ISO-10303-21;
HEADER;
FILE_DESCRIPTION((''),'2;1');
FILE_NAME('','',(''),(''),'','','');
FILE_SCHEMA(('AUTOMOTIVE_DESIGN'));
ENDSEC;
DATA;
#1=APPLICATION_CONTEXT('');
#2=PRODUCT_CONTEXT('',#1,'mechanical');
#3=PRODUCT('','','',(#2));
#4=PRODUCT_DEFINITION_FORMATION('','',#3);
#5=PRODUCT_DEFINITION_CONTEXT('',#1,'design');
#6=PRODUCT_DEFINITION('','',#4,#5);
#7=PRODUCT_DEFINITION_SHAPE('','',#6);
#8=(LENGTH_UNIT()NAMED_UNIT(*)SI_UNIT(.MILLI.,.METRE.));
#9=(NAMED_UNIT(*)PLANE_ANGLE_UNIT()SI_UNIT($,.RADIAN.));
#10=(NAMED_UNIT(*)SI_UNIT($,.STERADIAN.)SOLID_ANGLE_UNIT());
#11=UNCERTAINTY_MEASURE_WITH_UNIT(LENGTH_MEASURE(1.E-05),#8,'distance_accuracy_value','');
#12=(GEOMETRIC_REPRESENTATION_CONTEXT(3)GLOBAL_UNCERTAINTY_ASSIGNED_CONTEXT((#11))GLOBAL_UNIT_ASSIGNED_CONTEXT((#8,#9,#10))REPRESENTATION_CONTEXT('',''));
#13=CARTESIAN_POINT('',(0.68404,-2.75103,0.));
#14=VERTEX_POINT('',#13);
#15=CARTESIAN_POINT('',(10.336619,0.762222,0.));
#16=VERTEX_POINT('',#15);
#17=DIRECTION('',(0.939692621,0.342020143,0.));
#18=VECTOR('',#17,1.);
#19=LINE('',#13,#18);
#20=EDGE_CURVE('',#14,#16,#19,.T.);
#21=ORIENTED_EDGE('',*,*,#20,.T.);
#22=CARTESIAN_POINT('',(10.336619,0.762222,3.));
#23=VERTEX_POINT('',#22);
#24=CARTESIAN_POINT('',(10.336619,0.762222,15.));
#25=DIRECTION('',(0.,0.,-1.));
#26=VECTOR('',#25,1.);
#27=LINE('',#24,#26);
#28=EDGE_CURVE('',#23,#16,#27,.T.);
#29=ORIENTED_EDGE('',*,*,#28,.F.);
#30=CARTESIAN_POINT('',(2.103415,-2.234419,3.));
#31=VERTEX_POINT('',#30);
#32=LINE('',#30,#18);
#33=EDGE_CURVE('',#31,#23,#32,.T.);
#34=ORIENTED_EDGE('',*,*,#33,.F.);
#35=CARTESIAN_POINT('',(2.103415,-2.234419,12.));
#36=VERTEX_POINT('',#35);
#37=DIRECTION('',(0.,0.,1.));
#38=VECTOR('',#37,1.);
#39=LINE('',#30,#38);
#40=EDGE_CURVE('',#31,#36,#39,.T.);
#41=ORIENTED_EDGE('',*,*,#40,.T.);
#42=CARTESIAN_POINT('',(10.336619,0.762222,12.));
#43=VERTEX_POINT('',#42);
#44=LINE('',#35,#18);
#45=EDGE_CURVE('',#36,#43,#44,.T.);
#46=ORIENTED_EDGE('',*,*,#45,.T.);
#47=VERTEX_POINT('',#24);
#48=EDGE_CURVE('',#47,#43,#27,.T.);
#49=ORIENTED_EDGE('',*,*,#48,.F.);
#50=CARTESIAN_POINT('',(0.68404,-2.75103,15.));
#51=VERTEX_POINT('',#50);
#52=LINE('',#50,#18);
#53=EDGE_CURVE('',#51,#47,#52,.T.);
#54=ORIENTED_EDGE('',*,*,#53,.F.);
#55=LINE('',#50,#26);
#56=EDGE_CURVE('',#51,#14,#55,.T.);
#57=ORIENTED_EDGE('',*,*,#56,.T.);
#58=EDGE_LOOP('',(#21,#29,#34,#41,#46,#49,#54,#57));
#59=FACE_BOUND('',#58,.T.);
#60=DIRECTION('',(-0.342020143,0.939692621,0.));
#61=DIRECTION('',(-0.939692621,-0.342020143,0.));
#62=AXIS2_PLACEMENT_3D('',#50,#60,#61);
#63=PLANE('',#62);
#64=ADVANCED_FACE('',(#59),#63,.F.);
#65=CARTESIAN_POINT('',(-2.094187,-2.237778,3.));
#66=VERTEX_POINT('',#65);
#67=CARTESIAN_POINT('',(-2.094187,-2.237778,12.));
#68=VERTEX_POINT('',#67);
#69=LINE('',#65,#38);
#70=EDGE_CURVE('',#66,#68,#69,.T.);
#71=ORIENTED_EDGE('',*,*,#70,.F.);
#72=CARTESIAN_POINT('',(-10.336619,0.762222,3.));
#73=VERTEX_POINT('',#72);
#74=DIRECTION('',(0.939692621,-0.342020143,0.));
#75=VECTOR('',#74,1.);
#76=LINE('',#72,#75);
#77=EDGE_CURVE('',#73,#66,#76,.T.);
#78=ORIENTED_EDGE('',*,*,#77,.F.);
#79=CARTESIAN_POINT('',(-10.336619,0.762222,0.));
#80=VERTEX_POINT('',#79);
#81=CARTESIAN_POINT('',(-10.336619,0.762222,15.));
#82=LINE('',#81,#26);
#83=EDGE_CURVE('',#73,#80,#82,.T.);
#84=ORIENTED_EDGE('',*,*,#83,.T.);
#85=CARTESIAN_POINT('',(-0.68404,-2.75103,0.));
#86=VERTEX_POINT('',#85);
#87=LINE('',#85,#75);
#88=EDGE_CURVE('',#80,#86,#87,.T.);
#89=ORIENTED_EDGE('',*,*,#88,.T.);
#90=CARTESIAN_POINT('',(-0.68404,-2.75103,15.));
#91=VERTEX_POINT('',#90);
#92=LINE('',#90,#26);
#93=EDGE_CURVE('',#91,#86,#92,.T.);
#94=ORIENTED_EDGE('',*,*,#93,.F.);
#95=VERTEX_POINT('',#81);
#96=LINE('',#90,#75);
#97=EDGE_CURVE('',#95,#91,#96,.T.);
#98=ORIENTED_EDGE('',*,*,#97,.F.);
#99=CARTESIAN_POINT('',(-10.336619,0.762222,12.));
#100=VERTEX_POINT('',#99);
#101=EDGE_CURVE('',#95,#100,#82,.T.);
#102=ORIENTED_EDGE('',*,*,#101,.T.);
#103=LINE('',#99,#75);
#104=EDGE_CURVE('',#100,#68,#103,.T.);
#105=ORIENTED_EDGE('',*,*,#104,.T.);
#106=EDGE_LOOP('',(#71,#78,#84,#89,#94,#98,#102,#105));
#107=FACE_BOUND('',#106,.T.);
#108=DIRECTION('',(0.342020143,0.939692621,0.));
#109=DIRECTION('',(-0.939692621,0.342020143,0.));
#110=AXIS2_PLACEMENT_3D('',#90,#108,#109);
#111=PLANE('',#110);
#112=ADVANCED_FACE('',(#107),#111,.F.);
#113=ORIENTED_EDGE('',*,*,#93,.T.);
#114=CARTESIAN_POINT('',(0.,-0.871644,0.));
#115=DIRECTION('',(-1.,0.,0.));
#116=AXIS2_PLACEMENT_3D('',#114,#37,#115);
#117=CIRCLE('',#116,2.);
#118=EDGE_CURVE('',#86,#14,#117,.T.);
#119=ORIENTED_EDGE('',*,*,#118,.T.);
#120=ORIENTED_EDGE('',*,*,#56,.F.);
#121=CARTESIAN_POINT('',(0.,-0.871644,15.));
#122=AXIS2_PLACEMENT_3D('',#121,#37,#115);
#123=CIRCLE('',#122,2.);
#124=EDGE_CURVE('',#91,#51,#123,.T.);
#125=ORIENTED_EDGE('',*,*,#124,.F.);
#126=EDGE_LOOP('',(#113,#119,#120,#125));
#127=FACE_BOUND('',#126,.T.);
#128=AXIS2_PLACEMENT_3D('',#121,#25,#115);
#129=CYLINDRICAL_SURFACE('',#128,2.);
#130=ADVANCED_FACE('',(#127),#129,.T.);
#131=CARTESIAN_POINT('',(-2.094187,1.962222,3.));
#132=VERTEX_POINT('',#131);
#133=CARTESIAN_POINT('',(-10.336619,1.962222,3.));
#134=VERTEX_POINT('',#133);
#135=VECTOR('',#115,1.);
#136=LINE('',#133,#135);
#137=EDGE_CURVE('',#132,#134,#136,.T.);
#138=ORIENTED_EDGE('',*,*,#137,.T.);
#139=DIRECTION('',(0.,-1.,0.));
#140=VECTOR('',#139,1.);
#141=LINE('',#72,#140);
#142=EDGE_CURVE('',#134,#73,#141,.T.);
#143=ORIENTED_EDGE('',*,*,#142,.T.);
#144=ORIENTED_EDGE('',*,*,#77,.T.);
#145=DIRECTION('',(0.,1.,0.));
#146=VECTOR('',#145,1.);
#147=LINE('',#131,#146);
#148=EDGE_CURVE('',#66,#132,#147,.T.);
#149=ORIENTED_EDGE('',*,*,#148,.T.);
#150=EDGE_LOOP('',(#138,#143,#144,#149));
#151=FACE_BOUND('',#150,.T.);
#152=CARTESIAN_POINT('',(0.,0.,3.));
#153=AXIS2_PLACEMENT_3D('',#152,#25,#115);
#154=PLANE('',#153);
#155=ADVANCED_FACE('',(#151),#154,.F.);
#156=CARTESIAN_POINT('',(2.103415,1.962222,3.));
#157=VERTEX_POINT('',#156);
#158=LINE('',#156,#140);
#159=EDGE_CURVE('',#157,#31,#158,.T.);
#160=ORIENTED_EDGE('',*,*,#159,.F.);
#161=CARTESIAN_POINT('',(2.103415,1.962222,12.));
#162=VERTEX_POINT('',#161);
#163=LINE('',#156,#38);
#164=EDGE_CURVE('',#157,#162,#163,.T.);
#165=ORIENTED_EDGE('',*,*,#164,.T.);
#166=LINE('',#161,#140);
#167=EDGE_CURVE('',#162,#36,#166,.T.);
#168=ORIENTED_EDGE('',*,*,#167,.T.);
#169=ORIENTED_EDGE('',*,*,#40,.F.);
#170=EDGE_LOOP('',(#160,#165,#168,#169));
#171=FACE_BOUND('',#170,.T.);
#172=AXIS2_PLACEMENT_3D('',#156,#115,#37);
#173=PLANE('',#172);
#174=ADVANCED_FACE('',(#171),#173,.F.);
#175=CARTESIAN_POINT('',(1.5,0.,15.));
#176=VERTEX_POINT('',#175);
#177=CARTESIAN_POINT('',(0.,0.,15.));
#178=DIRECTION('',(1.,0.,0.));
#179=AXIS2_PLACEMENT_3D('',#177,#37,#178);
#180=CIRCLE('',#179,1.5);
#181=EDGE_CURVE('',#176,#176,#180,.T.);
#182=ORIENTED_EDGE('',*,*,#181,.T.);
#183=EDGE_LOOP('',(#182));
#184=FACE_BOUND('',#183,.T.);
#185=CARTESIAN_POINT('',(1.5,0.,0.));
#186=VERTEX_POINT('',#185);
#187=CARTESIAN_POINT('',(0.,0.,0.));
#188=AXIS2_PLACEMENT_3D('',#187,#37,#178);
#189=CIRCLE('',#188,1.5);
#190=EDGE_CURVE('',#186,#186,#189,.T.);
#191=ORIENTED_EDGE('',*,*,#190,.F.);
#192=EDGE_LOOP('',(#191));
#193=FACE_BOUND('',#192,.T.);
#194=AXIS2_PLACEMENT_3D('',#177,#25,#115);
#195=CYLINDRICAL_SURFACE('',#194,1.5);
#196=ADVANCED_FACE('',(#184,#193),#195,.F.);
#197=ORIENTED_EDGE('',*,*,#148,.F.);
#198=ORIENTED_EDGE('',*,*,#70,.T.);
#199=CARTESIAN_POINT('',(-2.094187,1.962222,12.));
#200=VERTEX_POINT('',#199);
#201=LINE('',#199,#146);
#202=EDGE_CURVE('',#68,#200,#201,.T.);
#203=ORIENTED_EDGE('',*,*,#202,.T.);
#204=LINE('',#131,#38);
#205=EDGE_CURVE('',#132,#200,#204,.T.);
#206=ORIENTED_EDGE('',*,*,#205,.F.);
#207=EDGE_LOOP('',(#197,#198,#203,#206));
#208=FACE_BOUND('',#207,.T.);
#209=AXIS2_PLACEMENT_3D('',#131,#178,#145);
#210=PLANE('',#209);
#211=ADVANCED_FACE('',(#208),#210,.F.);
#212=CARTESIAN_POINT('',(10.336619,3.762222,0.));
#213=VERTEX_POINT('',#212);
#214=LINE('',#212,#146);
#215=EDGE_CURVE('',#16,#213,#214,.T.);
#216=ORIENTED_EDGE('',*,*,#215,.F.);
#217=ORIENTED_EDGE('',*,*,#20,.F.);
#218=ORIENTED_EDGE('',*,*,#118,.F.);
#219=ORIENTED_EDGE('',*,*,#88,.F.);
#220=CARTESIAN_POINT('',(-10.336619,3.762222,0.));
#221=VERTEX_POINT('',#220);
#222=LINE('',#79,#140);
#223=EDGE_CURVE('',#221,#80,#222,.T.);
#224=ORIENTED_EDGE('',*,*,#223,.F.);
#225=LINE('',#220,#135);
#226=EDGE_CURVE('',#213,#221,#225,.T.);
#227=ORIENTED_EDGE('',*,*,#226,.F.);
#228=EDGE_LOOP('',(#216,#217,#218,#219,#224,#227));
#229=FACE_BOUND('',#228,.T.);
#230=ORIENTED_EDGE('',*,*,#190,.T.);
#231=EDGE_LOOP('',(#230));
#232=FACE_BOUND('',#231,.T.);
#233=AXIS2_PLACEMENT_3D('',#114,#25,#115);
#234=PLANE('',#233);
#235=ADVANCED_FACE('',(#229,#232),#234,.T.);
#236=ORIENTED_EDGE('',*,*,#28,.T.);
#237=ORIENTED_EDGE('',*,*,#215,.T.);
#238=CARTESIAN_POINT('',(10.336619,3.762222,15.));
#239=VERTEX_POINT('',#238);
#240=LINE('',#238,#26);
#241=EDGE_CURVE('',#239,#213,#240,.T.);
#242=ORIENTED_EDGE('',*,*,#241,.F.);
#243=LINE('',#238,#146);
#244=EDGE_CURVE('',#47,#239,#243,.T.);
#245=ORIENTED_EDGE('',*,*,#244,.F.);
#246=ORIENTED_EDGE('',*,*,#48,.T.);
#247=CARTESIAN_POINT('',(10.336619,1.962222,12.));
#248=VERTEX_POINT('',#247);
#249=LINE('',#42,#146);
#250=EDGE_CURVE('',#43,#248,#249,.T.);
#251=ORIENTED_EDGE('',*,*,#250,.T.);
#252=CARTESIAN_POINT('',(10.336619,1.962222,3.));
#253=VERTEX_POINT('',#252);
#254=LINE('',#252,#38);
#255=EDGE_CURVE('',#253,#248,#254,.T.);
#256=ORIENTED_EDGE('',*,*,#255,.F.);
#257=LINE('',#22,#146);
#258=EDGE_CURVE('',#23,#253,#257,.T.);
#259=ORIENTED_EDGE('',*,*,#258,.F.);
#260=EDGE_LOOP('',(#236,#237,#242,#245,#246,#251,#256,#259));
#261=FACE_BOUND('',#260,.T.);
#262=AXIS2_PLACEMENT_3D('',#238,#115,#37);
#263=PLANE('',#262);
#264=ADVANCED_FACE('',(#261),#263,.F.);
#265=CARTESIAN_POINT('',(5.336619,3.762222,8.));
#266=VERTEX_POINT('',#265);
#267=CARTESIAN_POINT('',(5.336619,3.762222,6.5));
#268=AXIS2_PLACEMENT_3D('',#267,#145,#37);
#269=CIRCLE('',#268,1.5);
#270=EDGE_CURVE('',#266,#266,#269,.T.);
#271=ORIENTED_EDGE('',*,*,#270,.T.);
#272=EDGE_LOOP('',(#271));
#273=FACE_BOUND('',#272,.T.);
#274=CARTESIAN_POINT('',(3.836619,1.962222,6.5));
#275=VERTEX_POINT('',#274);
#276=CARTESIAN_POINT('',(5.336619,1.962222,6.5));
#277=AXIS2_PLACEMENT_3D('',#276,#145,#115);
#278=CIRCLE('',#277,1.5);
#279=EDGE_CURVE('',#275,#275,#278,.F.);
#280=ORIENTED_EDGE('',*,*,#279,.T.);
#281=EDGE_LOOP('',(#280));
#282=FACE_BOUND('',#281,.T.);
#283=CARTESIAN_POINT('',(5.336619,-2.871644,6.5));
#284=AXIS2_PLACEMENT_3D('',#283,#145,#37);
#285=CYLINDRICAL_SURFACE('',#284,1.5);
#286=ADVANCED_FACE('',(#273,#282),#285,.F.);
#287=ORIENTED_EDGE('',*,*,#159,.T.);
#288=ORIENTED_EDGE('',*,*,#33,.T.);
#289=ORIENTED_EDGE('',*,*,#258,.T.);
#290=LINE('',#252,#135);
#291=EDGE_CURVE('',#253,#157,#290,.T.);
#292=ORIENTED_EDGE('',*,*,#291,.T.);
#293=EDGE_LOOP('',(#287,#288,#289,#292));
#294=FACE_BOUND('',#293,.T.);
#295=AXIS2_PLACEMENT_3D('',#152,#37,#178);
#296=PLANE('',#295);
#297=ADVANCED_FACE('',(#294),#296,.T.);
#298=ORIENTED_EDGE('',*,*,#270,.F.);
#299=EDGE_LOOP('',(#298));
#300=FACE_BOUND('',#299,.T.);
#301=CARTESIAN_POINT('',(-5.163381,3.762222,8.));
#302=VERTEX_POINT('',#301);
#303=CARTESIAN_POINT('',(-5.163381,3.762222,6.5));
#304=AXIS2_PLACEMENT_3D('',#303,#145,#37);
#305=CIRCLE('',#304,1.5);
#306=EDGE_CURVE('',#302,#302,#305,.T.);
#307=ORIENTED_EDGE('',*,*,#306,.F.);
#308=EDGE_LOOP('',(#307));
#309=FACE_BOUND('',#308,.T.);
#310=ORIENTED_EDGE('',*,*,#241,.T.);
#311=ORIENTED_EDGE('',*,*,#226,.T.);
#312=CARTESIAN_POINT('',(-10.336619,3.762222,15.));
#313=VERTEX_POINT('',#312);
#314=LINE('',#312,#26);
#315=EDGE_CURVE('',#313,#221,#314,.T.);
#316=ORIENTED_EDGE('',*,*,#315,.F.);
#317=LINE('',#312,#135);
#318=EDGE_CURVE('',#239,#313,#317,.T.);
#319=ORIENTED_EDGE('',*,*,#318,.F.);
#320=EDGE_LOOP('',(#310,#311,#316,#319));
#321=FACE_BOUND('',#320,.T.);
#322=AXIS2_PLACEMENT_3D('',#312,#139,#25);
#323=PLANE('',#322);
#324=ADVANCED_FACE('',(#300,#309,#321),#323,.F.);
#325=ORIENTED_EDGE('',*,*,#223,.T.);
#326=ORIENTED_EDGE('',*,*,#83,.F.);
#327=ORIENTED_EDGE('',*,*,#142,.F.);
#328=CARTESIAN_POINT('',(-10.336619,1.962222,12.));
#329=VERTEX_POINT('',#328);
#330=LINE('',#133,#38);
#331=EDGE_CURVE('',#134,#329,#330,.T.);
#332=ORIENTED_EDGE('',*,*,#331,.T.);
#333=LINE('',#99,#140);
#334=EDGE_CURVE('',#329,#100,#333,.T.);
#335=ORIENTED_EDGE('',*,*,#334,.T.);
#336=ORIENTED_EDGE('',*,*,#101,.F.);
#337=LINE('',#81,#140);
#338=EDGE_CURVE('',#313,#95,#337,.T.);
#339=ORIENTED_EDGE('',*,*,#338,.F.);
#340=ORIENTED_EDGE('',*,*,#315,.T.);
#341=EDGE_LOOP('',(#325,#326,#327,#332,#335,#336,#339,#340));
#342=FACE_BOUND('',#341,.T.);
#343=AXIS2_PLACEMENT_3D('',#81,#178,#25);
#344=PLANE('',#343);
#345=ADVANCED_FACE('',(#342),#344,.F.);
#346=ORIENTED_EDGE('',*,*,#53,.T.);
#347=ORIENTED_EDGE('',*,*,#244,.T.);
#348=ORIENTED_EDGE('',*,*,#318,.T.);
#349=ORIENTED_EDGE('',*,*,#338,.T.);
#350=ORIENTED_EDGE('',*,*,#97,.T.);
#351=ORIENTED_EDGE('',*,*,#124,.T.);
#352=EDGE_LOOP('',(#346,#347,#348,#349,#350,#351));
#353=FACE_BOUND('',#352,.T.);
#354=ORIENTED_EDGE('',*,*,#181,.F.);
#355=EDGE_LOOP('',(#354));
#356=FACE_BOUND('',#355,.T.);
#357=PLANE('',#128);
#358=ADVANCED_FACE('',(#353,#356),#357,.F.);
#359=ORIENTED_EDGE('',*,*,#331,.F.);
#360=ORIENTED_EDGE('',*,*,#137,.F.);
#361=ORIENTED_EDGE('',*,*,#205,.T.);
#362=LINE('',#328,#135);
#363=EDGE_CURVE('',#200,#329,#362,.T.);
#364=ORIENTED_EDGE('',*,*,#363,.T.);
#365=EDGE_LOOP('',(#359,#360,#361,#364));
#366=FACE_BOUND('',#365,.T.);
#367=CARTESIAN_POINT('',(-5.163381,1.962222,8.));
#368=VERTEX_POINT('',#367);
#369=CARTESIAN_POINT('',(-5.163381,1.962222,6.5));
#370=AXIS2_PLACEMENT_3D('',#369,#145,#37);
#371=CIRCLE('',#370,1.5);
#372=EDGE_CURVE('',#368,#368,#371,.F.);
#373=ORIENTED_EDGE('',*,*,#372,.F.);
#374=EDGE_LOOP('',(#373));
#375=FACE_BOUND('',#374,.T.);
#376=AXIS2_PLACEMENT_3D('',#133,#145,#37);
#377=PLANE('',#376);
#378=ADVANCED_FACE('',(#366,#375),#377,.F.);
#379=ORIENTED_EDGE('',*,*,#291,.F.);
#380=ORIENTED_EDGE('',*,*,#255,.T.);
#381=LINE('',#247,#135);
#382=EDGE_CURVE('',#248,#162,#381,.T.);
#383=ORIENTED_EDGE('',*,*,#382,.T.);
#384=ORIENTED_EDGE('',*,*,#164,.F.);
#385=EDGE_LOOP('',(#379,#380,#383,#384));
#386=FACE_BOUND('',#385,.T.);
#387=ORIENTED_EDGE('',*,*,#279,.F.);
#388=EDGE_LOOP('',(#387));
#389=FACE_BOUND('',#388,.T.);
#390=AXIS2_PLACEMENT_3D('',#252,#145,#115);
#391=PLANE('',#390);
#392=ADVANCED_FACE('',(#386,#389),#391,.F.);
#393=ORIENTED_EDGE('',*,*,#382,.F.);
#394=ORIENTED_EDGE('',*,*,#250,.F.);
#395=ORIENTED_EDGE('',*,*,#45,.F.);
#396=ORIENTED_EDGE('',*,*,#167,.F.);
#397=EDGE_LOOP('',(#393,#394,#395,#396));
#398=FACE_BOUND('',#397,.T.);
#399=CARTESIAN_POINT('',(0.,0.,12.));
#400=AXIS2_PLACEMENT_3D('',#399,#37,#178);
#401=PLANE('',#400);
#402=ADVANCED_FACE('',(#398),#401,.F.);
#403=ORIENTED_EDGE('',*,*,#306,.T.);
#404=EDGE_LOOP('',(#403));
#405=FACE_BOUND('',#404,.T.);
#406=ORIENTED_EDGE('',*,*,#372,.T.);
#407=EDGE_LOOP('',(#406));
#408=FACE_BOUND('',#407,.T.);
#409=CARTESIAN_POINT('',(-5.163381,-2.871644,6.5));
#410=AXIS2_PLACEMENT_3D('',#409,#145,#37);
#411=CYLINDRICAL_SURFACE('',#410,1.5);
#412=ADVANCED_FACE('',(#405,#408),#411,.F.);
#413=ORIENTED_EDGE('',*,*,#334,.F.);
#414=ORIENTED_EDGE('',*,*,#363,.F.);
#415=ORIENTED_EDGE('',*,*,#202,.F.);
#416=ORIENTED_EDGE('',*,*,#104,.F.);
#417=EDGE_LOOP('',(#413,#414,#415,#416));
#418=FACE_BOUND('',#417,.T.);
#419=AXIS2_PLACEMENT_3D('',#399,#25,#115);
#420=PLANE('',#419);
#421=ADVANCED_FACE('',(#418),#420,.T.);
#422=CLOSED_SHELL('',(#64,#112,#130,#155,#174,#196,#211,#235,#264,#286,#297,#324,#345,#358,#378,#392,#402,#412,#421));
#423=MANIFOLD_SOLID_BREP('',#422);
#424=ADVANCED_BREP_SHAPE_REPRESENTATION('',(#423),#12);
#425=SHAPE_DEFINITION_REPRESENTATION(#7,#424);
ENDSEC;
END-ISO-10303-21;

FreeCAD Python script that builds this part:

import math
import FreeCAD as App
import Part
import Sketcher
from FreeCAD import Vector
Q = App.Units.Quantity


def add_polygon(sketch, points):
    """Adds a closed chain of lines whose ends are joined by coincident constraints."""
    first, n = sketch.GeometryCount, len(points)
    for a, b in zip(points, points[1:] + points[:1]):
        sketch.addGeometry(Part.LineSegment(App.Vector(*a, 0), App.Vector(*b, 0)), False)
    for i in range(n):
        sketch.addConstraint(Sketcher.Constraint("Coincident", first + i, 2, first + (i + 1) % n, 1))

doc = App.newDocument("Part")
body = doc.addObject("PartDesign::Body", "Body")

# Sketch on XY plane
sketch1 = body.newObject("Sketcher::SketchObject", "Sketch")
sketch1.AttachmentSupport = (doc.getObject("XY_Plane"), [""])
sketch1.MapMode = "FlatFace"
sketch1.addGeometry(Part.LineSegment(Vector(-10.3, 0.8, 0), Vector(-0.7, -2.8, 0)), False)
sketch1.addGeometry(Part.ArcOfCircle(Part.Circle(Vector(0, -0.9, 0), Vector(0, 0, 1), 2), math.radians(-110), math.radians(-70)), False)
sketch1.addGeometry(Part.LineSegment(Vector(0.7, -2.8, 0), Vector(10.3, 0.8, 0)), False)
sketch1.addGeometry(Part.LineSegment(Vector(10.3, 0.8, 0), Vector(10.3, 3.8, 0)), False)
sketch1.addGeometry(Part.LineSegment(Vector(10.3, 3.8, 0), Vector(-10.3, 3.8, 0)), False)
sketch1.addGeometry(Part.LineSegment(Vector(-10.3, 3.8, 0), Vector(-10.3, 0.8, 0)), False)
sketch1.addGeometry(Part.Circle(Vector(0, 0, 0), Vector(0, 0, 1), 1.5), False)
sketch1.addConstraint(Sketcher.Constraint("Tangent", 0, 2, 1, 1))
sketch1.addConstraint(Sketcher.Constraint("Tangent", 1, 2, 2, 1))
sketch1.addConstraint(Sketcher.Constraint("Coincident", 2, 2, 3, 1))
sketch1.addConstraint(Sketcher.Constraint("Coincident", 3, 2, 4, 1))
sketch1.addConstraint(Sketcher.Constraint("Coincident", 4, 2, 5, 1))
sketch1.addConstraint(Sketcher.Constraint("Coincident", 5, 2, 0, 1))
sketch1.addConstraint(Sketcher.Constraint("Vertical", 3))
sketch1.addConstraint(Sketcher.Constraint("Horizontal", 4))
sketch1.addConstraint(Sketcher.Constraint("Vertical", 5))
sketch1.addConstraint(Sketcher.Constraint("Coincident", 6, 3, -1, 1))
sketch1.addConstraint(Sketcher.Constraint("Symmetric", 0, 2, 1, 2, -2))
sketch1.addConstraint(Sketcher.Constraint("Horizontal", 2, 2, 5, 2))
sketch1.addConstraint(Sketcher.Constraint("Diameter", 6, Q("3 mm")))
sketch1.addConstraint(Sketcher.Constraint("Radius", 1, Q("2 mm")))
sketch1.addConstraint(Sketcher.Constraint("DistanceY", 3, 1, 3, 2, Q("3 mm")))
sketch1.addConstraint(Sketcher.Constraint("Angle", 0, Q("-20 deg")))
sketch1.addConstraint(Sketcher.Constraint("Distance", 0, Q("10.27206 mm")))
sketch1.addConstraint(Sketcher.Constraint("DistanceY", 0, 2, -1, 1, Q("2.75103 mm")))
pad1 = body.newObject("PartDesign::Pad", "Pad")
pad1.Profile = sketch1
pad1.Length = 15

# Sketch on XZ plane
sketch2 = body.newObject("Sketcher::SketchObject", "Sketch001")
sketch2.AttachmentSupport = (doc.getObject("XZ_Plane"), [""])
sketch2.MapMode = "FlatFace"
sketch2.AttachmentOffset = App.Placement(Vector(0, 0, -3.762222), App.Rotation())
sketch2.addGeometry(Part.Circle(Vector(5.3, 6.5, 0), Vector(0, 0, 1), 1.5), False)
sketch2.addGeometry(Part.Circle(Vector(-5.2, 6.5, 0), Vector(0, 0, 1), 1.5), False)
sketch2.addConstraint(Sketcher.Constraint("Equal", 0, 1))
sketch2.addConstraint(Sketcher.Constraint("Horizontal", 0, 3, 1, 3))
sketch2.addConstraint(Sketcher.Constraint("Diameter", 0, Q("3 mm")))
sketch2.addConstraint(Sketcher.Constraint("DistanceY", -1, 1, 0, 3, Q("6.5 mm")))
sketch2.addConstraint(Sketcher.Constraint("DistanceX", 1, 3, 0, 3, Q("10.5 mm")))
sketch2.addConstraint(Sketcher.Constraint("DistanceX", -1, 1, 0, 3, Q("5.336619 mm")))
pocket1 = body.newObject("PartDesign::Pocket", "Pocket")
pocket1.Profile = sketch2
pocket1.Type = "ThroughAll"
pocket1.Reversed = True

# Sketch on XY plane
sketch3 = body.newObject("Sketcher::SketchObject", "Sketch002")
sketch3.AttachmentSupport = (doc.getObject("XY_Plane"), [""])
sketch3.MapMode = "FlatFace"
sketch3.AttachmentOffset = App.Placement(Vector(0, 0, 12), App.Rotation())
add_polygon(sketch3, [(10.3, 0.8), (10.3, 2), (2.1, 2), (2.1, -2.2)])  # lines 0-3
sketch3.addConstraint(Sketcher.Constraint("Vertical", 0))
sketch3.addConstraint(Sketcher.Constraint("Horizontal", 1))
sketch3.addConstraint(Sketcher.Constraint("Vertical", 2))
sketch3.addConstraint(Sketcher.Constraint("Angle", 3, Q("20 deg")))
sketch3.addConstraint(Sketcher.Constraint("DistanceY", 0, 1, 0, 2, Q("1.2 mm")))
sketch3.addConstraint(Sketcher.Constraint("DistanceY", 2, 2, 2, 1, Q("4.196641 mm")))
sketch3.addConstraint(Sketcher.Constraint("DistanceX", -1, 1, 0, 2, Q("10.336619 mm")))
sketch3.addConstraint(Sketcher.Constraint("DistanceY", -1, 1, 0, 2, Q("1.962222 mm")))
pocket2 = body.newObject("PartDesign::Pocket", "Pocket001")
pocket2.Profile = sketch3
pocket2.Length = 9

# Sketch on XY plane
sketch4 = body.newObject("Sketcher::SketchObject", "Sketch003")
sketch4.AttachmentSupport = (doc.getObject("XY_Plane"), [""])
sketch4.MapMode = "FlatFace"
sketch4.AttachmentOffset = App.Placement(Vector(0, 0, 12), App.Rotation())
add_polygon(sketch4, [(-10.3, 0.8), (-2.1, -2.2), (-2.1, 2), (-10.3, 2)])  # lines 0-3
sketch4.addConstraint(Sketcher.Constraint("Vertical", 1))
sketch4.addConstraint(Sketcher.Constraint("Horizontal", 2))
sketch4.addConstraint(Sketcher.Constraint("Vertical", 3))
sketch4.addConstraint(Sketcher.Constraint("Angle", 0, Q("-20 deg")))
sketch4.addConstraint(Sketcher.Constraint("DistanceY", 1, 1, 1, 2, Q("4.2 mm")))
sketch4.addConstraint(Sketcher.Constraint("DistanceY", 3, 2, 3, 1, Q("1.2 mm")))
sketch4.addConstraint(Sketcher.Constraint("DistanceY", 0, 2, -1, 1, Q("2.237778 mm")))
sketch4.addConstraint(Sketcher.Constraint("DistanceX", 2, 2, -1, 1, Q("10.336619 mm")))
pocket3 = body.newObject("PartDesign::Pocket", "Pocket002")
pocket3.Profile = sketch4
pocket3.Length = 9

doc.recompute()
